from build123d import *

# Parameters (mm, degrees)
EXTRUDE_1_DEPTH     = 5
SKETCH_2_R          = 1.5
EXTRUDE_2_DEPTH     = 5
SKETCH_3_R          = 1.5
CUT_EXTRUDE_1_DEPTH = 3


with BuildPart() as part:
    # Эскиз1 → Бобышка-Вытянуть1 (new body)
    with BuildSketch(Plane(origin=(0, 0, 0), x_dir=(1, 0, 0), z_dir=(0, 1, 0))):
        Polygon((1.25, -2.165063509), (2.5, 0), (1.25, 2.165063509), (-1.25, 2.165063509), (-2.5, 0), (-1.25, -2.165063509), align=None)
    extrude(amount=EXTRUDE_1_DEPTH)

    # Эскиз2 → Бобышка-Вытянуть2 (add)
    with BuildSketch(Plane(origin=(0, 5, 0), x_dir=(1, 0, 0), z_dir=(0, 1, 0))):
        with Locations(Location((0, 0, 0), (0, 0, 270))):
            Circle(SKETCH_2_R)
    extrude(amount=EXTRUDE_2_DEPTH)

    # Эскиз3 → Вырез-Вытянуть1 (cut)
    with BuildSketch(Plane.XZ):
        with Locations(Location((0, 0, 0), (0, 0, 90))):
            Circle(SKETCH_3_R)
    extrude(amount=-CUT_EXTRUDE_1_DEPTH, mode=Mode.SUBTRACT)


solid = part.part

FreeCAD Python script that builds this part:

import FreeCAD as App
import Part
import Sketcher

V = App.Vector
Q = App.Units.Quantity


def add_polygon(sketch, points):
    """Adds a closed chain of lines whose ends are joined by coincident constraints."""
    first, n = sketch.GeometryCount, len(points)
    for a, b in zip(points, points[1:] + points[:1]):
        sketch.addGeometry(Part.LineSegment(App.Vector(*a, 0), App.Vector(*b, 0)), False)
    for i in range(n):
        sketch.addConstraint(Sketcher.Constraint("Coincident", first + i, 2, first + (i + 1) % n, 1))

doc = App.newDocument("Part")
body = doc.addObject("PartDesign::Body", "Body")

sketch1 = body.newObject("Sketcher::SketchObject", "Sketch")
sketch1.AttachmentSupport = (doc.getObject("XZ_Plane"), [""])
sketch1.MapMode = "FlatFace"
add_polygon(sketch1, [(1.25, 2.165064), (2.5, 0), (1.25, -2.165064), (-1.25, -2.165064), (-2.5, 0), (-1.25, 2.165064)])
sketch1.addConstraint([
    Sketcher.Constraint("Horizontal", 2),
    Sketcher.Constraint("Horizontal", 5),
    Sketcher.Constraint("Symmetric", 0, 2, 3, 2, -1, 1),
    Sketcher.Constraint("Symmetric", 1, 2, 4, 2, -1, 1),
    Sketcher.Constraint("PointOnObject", 0, 2, -1),
    Sketcher.Constraint("Parallel", 0, 3),
    Sketcher.Constraint("Vertical", 2, 2, 4, 2),
    Sketcher.Constraint("Angle", 0, Q("-60 deg")),
    Sketcher.Constraint("DistanceX", 2, 2, 2, 1, 2.5),
    Sketcher.Constraint("DistanceX", 3, 2, 0, 2, 5.0),
])
pad1 = body.newObject("PartDesign::Pad", "Pad")
pad1.Profile = sketch1
pad1.Length = 5
pad1.Reversed = True

sketch2 = body.newObject("Sketcher::SketchObject", "Sketch001")
sketch2.AttachmentSupport = (doc.getObject("XZ_Plane"), [""])
sketch2.MapMode = "FlatFace"
sketch2.AttachmentOffset = App.Placement(V(0, 0, -5), App.Rotation())
sketch2.addGeometry(Part.Circle(V(0, 0, 0), V(0, 0, 1), 1.5), False)
sketch2.addConstraint([
    Sketcher.Constraint("Coincident", 0, 3, -1, 1),
    Sketcher.Constraint("Diameter", 0, 3.0),
])
pad2 = body.newObject("PartDesign::Pad", "Pad001")
pad2.Profile = sketch2
pad2.Length = 5
pad2.Reversed = True

sketch3 = body.newObject("Sketcher::SketchObject", "Sketch002")
sketch3.AttachmentSupport = (doc.getObject("XZ_Plane"), [""])
sketch3.MapMode = "FlatFace"
sketch3.addGeometry(Part.Circle(V(0, 0, 0), V(0, 0, 1), 1.5), False)
sketch3.addConstraint([
    Sketcher.Constraint("Coincident", 0, 3, -1, 1),
    Sketcher.Constraint("Diameter", 0, 3.0),
])
pocket1 = body.newObject("PartDesign::Pocket", "Pocket")
pocket1.Profile = sketch3
pocket1.Length = 3

doc.recompute()
